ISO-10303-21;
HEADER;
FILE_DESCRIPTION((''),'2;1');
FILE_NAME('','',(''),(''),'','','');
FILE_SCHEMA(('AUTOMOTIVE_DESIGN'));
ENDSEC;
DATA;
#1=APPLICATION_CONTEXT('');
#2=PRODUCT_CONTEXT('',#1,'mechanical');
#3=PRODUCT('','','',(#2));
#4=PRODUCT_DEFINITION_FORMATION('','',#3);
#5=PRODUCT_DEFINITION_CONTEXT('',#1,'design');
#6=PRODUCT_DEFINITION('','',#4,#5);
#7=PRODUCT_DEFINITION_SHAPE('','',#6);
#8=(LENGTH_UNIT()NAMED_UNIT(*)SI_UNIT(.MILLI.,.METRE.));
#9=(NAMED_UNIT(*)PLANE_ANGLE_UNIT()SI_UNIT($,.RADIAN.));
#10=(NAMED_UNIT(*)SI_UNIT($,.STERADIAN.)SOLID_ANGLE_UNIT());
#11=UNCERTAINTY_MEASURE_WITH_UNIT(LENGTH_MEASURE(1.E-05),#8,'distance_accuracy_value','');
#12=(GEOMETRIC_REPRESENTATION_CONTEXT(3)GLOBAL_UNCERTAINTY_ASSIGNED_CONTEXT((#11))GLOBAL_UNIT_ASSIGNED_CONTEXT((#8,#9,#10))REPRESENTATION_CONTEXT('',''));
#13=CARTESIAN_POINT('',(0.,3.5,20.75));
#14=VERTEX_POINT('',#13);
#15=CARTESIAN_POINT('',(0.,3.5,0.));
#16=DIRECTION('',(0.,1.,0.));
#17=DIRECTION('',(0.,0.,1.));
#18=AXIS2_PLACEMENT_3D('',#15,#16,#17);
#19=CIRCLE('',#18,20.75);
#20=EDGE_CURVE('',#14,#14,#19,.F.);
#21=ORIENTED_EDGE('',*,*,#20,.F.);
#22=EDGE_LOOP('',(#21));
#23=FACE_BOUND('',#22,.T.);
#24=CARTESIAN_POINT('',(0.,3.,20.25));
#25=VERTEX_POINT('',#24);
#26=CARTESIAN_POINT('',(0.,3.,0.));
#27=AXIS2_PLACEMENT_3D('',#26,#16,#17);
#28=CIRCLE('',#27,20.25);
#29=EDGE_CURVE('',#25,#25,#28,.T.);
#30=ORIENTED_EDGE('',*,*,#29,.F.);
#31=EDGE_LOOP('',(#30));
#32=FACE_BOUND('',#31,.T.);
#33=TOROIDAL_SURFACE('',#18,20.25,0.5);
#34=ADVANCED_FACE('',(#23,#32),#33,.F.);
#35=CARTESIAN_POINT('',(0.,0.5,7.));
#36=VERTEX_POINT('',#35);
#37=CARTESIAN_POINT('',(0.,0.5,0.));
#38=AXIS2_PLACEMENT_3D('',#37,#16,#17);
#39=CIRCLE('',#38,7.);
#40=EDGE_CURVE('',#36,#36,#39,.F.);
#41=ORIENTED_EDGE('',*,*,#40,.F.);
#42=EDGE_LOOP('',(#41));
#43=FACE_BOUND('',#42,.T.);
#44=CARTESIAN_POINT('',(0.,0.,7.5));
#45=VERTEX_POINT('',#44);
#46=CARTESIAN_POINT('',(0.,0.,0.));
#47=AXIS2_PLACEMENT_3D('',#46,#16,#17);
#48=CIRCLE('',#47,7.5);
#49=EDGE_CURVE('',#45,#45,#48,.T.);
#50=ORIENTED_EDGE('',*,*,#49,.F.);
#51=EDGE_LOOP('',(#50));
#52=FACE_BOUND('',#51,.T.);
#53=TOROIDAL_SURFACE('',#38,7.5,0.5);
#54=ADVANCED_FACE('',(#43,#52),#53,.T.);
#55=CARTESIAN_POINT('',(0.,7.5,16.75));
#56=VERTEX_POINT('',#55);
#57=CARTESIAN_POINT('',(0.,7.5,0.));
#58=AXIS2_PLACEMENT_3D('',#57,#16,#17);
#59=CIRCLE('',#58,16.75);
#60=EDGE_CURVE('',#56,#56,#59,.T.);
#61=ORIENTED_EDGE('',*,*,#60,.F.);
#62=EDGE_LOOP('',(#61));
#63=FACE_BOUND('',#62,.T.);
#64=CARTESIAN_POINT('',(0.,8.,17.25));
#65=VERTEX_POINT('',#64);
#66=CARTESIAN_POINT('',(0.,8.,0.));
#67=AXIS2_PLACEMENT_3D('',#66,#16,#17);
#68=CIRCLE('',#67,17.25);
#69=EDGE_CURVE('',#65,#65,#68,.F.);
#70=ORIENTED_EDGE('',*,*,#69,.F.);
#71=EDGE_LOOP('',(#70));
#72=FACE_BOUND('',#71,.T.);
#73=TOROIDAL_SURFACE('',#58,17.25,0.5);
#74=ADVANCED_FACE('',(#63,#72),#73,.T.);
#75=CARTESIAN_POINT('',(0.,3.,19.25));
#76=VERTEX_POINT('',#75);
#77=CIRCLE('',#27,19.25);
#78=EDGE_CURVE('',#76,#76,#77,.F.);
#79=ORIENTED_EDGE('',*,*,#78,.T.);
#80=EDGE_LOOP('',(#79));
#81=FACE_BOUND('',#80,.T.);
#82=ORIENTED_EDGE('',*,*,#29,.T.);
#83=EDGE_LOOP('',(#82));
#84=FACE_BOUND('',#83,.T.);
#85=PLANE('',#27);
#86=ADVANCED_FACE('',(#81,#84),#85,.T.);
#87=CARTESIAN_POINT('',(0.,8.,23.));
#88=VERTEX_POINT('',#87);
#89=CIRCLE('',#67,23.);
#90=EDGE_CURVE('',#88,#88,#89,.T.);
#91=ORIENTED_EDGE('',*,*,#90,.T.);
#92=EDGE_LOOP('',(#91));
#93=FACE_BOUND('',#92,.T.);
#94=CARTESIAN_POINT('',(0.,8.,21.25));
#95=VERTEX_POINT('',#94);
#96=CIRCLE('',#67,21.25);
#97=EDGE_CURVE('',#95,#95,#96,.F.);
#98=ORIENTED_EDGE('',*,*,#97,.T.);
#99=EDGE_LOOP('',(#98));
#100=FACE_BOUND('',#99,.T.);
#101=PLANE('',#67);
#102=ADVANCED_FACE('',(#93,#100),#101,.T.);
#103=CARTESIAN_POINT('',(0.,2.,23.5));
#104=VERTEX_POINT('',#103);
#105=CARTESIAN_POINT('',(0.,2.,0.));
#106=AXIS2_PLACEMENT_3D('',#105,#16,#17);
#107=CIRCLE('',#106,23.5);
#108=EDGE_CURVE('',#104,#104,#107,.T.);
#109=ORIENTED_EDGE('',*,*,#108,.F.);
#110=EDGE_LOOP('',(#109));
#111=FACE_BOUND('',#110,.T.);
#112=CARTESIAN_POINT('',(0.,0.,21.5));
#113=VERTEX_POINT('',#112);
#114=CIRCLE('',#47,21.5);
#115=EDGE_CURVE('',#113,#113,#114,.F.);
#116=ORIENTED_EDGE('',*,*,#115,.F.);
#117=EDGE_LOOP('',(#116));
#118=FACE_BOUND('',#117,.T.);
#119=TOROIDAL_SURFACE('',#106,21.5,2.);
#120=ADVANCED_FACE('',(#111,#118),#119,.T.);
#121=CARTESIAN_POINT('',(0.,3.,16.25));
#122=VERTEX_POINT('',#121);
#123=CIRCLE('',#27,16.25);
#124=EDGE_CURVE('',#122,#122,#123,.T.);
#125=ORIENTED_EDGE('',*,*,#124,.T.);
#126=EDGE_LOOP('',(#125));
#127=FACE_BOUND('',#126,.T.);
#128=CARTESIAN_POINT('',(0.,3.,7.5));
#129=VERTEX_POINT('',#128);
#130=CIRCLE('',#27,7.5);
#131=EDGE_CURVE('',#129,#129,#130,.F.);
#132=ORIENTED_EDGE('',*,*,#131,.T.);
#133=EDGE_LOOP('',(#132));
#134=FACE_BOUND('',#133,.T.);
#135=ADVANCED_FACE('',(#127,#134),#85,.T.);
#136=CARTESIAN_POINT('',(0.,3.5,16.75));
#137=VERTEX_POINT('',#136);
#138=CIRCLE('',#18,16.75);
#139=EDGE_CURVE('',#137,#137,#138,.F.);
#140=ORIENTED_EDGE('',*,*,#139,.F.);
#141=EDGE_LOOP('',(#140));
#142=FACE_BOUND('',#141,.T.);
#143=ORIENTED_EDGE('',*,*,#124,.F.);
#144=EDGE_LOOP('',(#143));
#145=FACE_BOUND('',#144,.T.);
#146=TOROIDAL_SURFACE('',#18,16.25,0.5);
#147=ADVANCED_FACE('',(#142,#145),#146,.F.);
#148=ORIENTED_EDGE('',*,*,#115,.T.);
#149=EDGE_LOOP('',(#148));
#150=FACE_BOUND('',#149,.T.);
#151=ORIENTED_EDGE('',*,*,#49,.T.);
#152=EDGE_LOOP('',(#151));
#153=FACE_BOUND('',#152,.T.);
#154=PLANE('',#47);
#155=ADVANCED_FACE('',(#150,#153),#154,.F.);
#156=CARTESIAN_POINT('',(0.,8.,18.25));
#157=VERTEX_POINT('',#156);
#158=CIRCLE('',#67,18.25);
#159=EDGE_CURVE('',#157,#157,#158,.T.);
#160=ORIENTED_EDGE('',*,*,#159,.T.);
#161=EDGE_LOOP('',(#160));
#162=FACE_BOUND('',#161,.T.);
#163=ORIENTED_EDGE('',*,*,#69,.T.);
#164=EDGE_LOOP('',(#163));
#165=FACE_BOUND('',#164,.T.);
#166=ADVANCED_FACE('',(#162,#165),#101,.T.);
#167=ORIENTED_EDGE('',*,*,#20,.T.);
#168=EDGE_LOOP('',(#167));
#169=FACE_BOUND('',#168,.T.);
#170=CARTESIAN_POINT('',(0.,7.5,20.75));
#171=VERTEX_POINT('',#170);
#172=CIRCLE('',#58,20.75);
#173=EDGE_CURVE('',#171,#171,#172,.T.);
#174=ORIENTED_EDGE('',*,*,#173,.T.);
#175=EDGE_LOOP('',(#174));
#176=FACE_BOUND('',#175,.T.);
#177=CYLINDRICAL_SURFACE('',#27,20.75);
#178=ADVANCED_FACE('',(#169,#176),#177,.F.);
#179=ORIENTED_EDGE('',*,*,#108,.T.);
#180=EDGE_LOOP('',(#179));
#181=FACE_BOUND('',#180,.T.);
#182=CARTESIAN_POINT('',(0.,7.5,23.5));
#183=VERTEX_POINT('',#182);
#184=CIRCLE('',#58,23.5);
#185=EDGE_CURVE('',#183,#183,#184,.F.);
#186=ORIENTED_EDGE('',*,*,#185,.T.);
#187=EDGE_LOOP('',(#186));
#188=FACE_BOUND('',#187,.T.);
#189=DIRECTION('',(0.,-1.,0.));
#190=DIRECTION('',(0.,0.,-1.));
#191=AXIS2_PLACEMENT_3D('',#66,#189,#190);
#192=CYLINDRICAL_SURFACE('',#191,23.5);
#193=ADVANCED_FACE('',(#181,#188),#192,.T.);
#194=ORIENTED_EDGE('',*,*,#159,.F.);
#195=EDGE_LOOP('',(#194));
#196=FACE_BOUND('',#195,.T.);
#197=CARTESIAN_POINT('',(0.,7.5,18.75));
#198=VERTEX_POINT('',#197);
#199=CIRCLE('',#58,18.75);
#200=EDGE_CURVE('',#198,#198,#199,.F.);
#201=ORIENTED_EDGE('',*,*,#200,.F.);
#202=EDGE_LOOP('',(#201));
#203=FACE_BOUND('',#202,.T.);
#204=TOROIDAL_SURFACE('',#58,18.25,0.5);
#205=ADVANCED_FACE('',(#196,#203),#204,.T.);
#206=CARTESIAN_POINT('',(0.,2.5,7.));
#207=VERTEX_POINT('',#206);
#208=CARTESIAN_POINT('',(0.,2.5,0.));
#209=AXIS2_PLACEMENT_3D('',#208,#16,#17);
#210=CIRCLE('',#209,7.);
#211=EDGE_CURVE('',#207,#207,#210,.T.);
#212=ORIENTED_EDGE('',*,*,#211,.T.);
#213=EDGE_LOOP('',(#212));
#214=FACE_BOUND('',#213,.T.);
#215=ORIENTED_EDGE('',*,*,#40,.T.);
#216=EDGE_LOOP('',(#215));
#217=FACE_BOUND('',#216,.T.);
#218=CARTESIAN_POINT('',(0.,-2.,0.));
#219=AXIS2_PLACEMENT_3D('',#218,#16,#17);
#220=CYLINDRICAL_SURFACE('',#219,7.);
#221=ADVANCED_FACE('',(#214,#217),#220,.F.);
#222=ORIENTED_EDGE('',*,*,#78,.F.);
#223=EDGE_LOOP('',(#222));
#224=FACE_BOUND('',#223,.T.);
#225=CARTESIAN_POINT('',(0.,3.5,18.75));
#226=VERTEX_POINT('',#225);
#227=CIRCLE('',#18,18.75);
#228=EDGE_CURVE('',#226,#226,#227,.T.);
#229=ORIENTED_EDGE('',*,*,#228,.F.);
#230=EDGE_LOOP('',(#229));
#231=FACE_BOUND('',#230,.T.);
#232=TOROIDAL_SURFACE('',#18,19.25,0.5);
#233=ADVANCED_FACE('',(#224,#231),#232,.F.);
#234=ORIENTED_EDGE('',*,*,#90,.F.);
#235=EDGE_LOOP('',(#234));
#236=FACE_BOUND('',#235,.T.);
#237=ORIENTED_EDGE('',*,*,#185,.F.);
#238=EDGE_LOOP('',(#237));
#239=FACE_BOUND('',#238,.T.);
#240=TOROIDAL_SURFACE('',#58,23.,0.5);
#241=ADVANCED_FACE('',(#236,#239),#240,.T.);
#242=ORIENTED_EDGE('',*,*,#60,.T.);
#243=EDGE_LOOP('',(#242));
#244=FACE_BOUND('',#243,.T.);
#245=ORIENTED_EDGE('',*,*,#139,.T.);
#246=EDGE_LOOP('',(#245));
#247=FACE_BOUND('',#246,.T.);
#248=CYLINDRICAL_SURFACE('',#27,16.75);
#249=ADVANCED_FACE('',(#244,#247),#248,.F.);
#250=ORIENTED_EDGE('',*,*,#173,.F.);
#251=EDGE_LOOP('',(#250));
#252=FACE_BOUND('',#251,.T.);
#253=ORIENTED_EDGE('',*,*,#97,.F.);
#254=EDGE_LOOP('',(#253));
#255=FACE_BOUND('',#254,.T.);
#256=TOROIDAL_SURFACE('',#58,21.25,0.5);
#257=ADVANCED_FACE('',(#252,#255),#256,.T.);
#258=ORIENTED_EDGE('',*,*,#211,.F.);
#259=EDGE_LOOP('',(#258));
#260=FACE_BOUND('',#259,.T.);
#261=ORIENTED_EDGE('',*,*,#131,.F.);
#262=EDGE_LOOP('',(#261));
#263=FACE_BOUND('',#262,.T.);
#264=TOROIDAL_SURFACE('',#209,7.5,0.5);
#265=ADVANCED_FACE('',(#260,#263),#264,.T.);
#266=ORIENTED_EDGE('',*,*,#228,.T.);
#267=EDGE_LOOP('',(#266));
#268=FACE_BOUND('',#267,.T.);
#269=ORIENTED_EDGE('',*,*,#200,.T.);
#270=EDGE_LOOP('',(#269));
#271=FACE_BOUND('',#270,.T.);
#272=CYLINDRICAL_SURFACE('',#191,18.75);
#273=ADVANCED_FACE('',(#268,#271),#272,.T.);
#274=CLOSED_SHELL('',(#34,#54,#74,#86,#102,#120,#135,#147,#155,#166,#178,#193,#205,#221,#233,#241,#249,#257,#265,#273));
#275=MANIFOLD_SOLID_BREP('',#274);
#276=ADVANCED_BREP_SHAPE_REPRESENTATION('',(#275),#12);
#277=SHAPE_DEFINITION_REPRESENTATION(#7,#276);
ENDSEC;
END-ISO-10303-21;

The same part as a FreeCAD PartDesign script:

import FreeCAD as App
import Part
import Sketcher


def edges_at(feature, points):
    """Names of the edges that pass closest to the given points."""
    edges = feature.Shape.Edges
    near = lambda p: min(range(len(edges)), key=lambda i: edges[i].distToShape(Part.Vertex(*p))[0])
    return sorted({f"Edge{near(p) + 1}" for p in points})

doc = App.newDocument("Part")
body = doc.addObject("PartDesign::Body", "Body")

# Sketch on XZ plane
sketch1 = doc.addObject("Sketcher::SketchObject", "Sketch")
body.addObject(sketch1)
sketch1.AttachmentSupport = (doc.XZ_Plane, [""])
sketch1.MapMode = "FlatFace"
sketch1.addGeometry(Part.Circle(App.Vector(0, 0, 0), App.Vector(0, 0, 1), 23.5), False)
sketch1.addConstraint(Sketcher.Constraint("Coincident", 0, 3, -1, 1))
sketch1.addConstraint(Sketcher.Constraint("Diameter", 0, 47.0))
pad1 = doc.addObject("PartDesign::Pad", "Pad")
body.addObject(pad1)
pad1.Profile = sketch1
pad1.Length = 8
pad1.Reversed = True

# Sketch on XZ plane
sketch2 = doc.addObject("Sketcher::SketchObject", "Sketch001")
body.addObject(sketch2)
sketch2.AttachmentSupport = (doc.XZ_Plane, [""])
sketch2.MapMode = "FlatFace"
sketch2.AttachmentOffset = App.Placement(App.Vector(0, 0, -8), App.Rotation())
sketch2.addGeometry(Part.Circle(App.Vector(0, 0, 0), App.Vector(0, 0, 1), 20.75), False)
sketch2.addConstraint(Sketcher.Constraint("Coincident", 0, 3, -1, 1))
sketch2.addConstraint(Sketcher.Constraint("Diameter", 0, 41.5))
pocket1 = doc.addObject("PartDesign::Pocket", "Pocket")
body.addObject(pocket1)
pocket1.Profile = sketch2
pocket1.Length = 5
pocket1.Reversed = True

# Sketch on XZ plane
sketch3 = doc.addObject("Sketcher::SketchObject", "Sketch002")
body.addObject(sketch3)
sketch3.AttachmentSupport = (doc.XZ_Plane, [""])
sketch3.MapMode = "FlatFace"
sketch3.AttachmentOffset = App.Placement(App.Vector(0, 0, -3), App.Rotation())
sketch3.addGeometry(Part.Circle(App.Vector(0, 0, 0), App.Vector(0, 0, 1), 18.75), False)
sketch3.addConstraint(Sketcher.Constraint("Coincident", 0, 3, -1, 1))
sketch3.addConstraint(Sketcher.Constraint("Diameter", 0, 37.5))
pad2 = doc.addObject("PartDesign::Pad", "Pad001")
body.addObject(pad2)
pad2.Profile = sketch3
pad2.Length = 5
pad2.Reversed = True

# Sketch on XZ plane
sketch4 = doc.addObject("Sketcher::SketchObject", "Sketch003")
body.addObject(sketch4)
sketch4.AttachmentSupport = (doc.XZ_Plane, [""])
sketch4.MapMode = "FlatFace"
sketch4.AttachmentOffset = App.Placement(App.Vector(0, 0, -8), App.Rotation())
sketch4.addGeometry(Part.Circle(App.Vector(0, 0, 0), App.Vector(0, 0, 1), 16.75), False)
sketch4.addConstraint(Sketcher.Constraint("Coincident", 0, 3, -1, 1))
sketch4.addConstraint(Sketcher.Constraint("Diameter", 0, 33.5))
pocket2 = doc.addObject("PartDesign::Pocket", "Pocket001")
body.addObject(pocket2)
pocket2.Profile = sketch4
pocket2.Length = 5
pocket2.Reversed = True

# Sketch on XZ plane
sketch5 = doc.addObject("Sketcher::SketchObject", "Sketch004")
body.addObject(sketch5)
sketch5.AttachmentSupport = (doc.XZ_Plane, [""])
sketch5.MapMode = "FlatFace"
sketch5.AttachmentOffset = App.Placement(App.Vector(0, 0, -3), App.Rotation())
sketch5.addGeometry(Part.Circle(App.Vector(0, 0, 0), App.Vector(0, 0, 1), 7), False)
sketch5.addConstraint(Sketcher.Constraint("Coincident", 0, 3, -1, 1))
sketch5.addConstraint(Sketcher.Constraint("Diameter", 0, 14.0))
pocket3 = doc.addObject("PartDesign::Pocket", "Pocket002")
body.addObject(pocket3)
pocket3.Profile = sketch5
pocket3.Length = 5
pocket3.Reversed = True
doc.recompute()

fillet = doc.addObject("PartDesign::Fillet", "Fillet")
body.addObject(fillet)
fillet.Base = (pocket3, edges_at(pocket3, [
    (0, 8, -23.5),
    (0, 0, -7),
    (0, 8, -20.75),
    (0, 3, -7),
    (0, 3, -20.75),
    (0, 3, -16.75),
    (0, 3, -18.75),
    (0, 8, -16.75),
    (0, 8, -18.75),
]))
fillet.Radius = 0.5
doc.recompute()

fillet2 = doc.addObject("PartDesign::Fillet", "Fillet001")
body.addObject(fillet2)
fillet2.Base = (fillet, edges_at(fillet, [(0, 0, -23.5)]))
fillet2.Radius = 2

doc.recompute()
